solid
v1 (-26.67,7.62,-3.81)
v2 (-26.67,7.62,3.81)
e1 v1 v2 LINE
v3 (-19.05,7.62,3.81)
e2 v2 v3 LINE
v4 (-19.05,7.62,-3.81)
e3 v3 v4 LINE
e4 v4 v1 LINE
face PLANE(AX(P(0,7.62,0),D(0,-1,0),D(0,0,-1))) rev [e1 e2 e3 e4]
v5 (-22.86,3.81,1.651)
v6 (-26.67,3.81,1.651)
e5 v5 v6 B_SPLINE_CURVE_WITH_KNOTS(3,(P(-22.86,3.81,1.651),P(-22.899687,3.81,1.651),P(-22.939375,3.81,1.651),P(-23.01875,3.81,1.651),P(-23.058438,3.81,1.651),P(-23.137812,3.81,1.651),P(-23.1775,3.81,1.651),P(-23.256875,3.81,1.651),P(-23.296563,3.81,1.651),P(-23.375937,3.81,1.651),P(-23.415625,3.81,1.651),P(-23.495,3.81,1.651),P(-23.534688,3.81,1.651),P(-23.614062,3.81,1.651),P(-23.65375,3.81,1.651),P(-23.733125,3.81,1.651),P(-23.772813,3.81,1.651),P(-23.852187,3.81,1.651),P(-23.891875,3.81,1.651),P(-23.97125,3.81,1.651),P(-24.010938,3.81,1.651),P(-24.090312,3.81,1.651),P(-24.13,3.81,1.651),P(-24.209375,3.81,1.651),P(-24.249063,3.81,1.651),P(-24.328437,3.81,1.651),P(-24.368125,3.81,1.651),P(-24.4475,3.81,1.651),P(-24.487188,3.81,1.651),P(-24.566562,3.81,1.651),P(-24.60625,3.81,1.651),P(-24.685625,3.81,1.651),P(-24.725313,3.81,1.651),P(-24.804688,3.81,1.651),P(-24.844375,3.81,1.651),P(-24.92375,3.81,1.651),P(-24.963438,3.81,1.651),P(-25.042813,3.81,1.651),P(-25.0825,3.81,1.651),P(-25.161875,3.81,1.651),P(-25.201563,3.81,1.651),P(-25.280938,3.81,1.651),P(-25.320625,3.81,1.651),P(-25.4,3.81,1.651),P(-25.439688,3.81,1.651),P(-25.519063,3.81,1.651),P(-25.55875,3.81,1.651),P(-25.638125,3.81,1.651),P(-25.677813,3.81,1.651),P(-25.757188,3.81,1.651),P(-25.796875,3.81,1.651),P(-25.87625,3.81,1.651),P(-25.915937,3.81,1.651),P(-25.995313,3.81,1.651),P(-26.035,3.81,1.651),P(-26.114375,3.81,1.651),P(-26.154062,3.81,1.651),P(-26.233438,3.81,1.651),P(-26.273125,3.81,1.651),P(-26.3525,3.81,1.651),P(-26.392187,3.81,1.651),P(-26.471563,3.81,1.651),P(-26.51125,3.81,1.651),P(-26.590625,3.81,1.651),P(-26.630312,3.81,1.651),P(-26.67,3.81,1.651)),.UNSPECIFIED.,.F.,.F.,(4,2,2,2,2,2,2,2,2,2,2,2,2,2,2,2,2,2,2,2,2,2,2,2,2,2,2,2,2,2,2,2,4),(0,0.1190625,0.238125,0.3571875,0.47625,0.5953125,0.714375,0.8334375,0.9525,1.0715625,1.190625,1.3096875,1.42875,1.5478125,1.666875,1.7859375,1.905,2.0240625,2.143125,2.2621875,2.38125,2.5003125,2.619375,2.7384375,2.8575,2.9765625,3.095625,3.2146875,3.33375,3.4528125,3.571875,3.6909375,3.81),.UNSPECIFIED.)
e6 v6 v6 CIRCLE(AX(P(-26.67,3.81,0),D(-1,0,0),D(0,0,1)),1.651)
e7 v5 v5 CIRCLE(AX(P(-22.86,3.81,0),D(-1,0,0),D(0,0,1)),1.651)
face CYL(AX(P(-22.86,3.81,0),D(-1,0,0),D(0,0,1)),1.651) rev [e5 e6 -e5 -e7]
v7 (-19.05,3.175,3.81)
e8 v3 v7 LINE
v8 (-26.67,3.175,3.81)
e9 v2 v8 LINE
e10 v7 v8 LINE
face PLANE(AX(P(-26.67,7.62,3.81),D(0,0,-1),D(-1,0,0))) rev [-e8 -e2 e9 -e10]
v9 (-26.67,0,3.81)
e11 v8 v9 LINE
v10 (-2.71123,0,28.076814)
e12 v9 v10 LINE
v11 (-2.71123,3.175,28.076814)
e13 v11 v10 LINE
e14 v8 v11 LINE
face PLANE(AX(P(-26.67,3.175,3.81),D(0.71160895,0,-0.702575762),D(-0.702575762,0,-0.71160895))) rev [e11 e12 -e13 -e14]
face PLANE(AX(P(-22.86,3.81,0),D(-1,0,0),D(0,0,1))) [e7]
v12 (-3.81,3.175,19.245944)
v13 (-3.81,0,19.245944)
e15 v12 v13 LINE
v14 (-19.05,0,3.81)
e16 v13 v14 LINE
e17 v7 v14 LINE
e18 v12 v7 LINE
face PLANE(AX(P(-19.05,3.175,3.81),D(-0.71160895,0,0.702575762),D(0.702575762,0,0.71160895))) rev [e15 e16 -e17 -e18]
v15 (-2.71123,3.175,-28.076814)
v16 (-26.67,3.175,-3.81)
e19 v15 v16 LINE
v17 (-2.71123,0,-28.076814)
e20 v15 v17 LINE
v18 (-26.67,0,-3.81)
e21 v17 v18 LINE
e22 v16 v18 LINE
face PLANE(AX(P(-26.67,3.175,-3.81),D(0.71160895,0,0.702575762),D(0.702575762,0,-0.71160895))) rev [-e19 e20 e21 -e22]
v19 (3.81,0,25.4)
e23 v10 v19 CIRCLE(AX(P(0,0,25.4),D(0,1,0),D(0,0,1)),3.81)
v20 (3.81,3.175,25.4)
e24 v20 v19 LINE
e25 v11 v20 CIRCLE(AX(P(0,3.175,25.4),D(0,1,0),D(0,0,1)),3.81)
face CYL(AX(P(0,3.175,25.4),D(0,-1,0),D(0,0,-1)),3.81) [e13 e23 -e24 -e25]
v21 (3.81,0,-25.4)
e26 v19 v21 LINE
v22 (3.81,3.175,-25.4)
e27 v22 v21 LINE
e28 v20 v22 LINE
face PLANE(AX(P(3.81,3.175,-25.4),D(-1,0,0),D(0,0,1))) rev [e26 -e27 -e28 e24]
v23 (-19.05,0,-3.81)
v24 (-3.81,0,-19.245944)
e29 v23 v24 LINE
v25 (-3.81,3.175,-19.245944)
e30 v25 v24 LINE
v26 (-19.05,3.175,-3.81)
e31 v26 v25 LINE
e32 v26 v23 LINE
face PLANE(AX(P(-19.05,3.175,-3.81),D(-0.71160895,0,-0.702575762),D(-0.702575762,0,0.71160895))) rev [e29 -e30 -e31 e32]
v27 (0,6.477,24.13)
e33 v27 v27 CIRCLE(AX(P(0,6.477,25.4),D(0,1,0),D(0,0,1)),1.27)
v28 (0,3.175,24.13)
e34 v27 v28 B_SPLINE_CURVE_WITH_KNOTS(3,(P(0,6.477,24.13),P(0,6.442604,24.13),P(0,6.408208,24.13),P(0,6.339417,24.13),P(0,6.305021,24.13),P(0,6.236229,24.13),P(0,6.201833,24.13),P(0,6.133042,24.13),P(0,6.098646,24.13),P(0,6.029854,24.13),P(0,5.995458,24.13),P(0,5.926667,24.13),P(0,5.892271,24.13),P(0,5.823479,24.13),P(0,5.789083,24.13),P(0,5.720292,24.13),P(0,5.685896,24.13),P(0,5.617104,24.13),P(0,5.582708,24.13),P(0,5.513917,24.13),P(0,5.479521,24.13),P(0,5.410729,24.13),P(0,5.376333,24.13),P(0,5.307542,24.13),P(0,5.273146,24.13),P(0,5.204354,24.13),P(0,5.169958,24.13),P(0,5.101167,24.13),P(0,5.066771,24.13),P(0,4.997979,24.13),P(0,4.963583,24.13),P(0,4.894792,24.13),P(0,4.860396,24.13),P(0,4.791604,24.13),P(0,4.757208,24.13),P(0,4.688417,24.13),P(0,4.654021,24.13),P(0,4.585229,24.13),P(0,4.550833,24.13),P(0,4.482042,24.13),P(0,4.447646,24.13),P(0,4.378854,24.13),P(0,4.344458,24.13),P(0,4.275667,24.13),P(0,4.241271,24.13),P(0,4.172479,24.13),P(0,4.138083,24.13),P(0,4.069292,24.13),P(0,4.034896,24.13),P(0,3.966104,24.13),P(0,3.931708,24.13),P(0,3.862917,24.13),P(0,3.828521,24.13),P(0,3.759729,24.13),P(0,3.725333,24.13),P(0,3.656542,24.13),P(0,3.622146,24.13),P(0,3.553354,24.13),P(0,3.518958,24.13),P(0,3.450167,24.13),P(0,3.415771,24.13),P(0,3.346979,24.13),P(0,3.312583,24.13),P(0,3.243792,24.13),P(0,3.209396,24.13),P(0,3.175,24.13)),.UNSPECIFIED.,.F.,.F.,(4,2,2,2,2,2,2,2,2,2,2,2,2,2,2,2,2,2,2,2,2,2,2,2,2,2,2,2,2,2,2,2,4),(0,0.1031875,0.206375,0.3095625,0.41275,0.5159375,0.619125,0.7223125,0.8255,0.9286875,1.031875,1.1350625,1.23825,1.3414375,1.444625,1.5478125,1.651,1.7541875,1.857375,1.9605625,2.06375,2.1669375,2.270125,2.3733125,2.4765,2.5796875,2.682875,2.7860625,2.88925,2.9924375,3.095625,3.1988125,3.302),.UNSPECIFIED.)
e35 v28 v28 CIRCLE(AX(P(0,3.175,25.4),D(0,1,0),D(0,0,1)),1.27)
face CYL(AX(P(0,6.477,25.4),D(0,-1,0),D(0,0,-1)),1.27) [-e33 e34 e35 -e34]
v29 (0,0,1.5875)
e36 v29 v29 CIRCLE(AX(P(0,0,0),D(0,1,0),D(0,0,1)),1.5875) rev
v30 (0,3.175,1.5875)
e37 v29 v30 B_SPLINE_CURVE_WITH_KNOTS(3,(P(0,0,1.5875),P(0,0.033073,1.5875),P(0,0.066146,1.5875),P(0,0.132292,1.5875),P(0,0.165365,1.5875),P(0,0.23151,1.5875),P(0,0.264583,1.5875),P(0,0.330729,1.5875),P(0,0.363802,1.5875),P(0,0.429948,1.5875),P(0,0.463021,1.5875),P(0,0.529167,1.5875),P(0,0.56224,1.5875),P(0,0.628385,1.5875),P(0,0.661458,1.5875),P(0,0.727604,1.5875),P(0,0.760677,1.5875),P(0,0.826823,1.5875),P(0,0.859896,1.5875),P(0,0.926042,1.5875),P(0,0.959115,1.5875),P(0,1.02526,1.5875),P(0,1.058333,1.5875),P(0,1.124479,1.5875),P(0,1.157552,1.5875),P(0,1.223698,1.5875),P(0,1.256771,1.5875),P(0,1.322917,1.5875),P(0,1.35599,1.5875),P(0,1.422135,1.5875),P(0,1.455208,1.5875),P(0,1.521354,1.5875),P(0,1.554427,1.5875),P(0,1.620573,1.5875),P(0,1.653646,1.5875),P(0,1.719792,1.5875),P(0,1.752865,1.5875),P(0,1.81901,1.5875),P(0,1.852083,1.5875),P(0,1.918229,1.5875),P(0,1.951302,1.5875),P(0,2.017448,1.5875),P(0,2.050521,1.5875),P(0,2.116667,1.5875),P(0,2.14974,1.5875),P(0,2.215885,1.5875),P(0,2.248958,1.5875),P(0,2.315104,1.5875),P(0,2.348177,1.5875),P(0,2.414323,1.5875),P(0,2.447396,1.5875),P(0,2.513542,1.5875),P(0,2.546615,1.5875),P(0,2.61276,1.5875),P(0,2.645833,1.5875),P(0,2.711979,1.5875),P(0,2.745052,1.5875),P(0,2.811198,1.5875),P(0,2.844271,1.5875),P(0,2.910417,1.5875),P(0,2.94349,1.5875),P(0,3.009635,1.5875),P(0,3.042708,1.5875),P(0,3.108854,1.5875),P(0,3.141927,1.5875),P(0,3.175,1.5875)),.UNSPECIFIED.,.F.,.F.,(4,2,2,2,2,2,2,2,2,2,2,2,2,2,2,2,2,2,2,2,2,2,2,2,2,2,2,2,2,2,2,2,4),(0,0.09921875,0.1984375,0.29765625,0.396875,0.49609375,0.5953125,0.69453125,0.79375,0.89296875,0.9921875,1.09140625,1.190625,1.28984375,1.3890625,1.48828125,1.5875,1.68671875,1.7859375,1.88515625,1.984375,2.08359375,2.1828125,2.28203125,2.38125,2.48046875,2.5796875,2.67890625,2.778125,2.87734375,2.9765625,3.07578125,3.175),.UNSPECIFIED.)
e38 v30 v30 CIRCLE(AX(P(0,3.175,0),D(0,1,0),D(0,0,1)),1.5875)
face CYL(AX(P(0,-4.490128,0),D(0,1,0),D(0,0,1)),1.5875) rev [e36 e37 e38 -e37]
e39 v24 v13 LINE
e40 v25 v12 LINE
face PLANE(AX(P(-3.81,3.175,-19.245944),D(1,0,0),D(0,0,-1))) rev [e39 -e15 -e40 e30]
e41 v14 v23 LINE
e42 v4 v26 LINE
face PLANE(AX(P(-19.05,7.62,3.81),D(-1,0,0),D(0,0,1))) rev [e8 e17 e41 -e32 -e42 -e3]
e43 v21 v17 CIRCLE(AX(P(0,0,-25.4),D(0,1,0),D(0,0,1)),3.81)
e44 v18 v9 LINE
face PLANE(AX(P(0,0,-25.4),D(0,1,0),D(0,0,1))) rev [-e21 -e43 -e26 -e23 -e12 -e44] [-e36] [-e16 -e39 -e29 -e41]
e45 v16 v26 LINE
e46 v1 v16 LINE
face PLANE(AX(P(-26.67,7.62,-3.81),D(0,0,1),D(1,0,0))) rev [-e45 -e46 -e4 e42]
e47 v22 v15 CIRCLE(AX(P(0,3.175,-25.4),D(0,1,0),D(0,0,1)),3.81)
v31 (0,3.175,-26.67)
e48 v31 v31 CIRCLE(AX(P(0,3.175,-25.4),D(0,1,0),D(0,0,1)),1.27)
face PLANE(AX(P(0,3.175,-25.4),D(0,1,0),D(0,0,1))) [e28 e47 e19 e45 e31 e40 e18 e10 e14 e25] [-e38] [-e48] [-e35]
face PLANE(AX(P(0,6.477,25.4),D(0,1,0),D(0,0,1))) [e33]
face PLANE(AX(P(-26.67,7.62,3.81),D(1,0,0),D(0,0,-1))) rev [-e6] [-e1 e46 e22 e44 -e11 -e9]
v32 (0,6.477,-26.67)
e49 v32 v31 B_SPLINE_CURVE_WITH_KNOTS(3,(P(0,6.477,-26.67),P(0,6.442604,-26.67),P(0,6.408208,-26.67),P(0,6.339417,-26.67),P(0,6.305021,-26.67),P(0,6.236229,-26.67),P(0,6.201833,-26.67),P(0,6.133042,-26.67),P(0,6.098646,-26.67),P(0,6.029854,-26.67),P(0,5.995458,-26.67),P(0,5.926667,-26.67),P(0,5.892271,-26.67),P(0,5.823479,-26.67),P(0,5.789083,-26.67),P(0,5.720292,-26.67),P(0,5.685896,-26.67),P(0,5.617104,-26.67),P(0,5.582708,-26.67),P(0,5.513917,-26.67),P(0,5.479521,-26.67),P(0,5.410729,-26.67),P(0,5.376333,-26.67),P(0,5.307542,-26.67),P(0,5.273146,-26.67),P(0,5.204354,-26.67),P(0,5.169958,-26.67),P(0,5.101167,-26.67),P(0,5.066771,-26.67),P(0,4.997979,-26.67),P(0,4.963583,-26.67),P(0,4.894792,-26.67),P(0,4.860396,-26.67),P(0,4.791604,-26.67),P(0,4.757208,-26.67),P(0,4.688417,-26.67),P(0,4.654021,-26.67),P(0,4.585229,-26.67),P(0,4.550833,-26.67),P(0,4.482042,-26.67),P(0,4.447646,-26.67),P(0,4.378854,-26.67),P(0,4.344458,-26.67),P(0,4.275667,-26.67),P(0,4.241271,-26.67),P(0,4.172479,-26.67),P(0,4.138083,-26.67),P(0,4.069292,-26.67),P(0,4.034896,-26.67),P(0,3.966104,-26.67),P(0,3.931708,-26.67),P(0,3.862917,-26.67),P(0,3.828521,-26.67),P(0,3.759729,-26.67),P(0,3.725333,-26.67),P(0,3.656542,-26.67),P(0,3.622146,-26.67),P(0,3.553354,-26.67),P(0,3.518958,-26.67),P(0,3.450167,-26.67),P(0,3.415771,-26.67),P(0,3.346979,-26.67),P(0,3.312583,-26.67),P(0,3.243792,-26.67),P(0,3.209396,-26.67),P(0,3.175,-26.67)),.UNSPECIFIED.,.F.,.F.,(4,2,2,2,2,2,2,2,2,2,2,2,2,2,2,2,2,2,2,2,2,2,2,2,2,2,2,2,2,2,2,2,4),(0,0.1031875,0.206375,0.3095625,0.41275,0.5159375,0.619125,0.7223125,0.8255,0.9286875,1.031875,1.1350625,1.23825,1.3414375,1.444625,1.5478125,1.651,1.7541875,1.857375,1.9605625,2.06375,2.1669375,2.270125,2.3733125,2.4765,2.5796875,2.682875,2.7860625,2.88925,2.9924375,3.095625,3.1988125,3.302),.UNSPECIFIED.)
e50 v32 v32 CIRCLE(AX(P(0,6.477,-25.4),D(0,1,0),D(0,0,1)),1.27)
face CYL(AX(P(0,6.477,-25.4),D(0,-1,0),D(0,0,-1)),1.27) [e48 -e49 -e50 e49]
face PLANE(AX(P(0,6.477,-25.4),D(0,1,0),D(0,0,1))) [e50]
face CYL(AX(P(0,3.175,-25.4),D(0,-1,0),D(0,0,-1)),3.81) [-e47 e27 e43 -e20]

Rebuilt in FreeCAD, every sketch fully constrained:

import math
import FreeCAD as App
import Part
import Sketcher
from FreeCAD import Vector
Q = App.Units.Quantity


def add_polygon(sketch, points):
    """Adds a closed chain of lines whose ends are joined by coincident constraints."""
    first, n = sketch.GeometryCount, len(points)
    for a, b in zip(points, points[1:] + points[:1]):
        sketch.addGeometry(Part.LineSegment(App.Vector(*a, 0), App.Vector(*b, 0)), False)
    for i in range(n):
        sketch.addConstraint(Sketcher.Constraint("Coincident", first + i, 2, first + (i + 1) % n, 1))

doc = App.newDocument("Part")
params = doc.addObject("Spreadsheet::Sheet", "Params")
for row, (alias, value) in enumerate([
    ("sketch1_height", "2 in"),
    ("sketch1_radius", "0.15 in"),
    ("sketch1_width", "0.3 in"),
    ("pad1_length", "0.125 in"),
    ("sketch2_width", "0.3 in"),
    ("pad2_length", "0.3 in"),
    ("sketch3_diameter", "0.1 in"),
    ("pad3_length", "0.13 in"),
    ("sketch4_diameter", "0.125 in"),
    ("sketch5_diameter", "0.13 in"),
    ("pocket2_length", "0.15 in"),
], start=1):
    params.set(f"A{row}", alias)
    params.set(f"B{row}", "=" + value)
    params.setAlias(f"B{row}", alias)

body = doc.addObject("PartDesign::Body", "Body")

sketch1 = body.newObject("Sketcher::SketchObject", "Sketch")
sketch1.AttachmentSupport = (doc.getObject("XZ_Plane"), [""])
sketch1.MapMode = "FlatFace"
sketch1.addGeometry([
    Part.LineSegment(Vector(-3.8, -19.2, 0), Vector(-3.8, 19.2, 0)),
    Part.LineSegment(Vector(-3.8, 19.2, 0), Vector(-19.1, 3.8, 0)),
    Part.LineSegment(Vector(-19.1, 3.8, 0), Vector(-26.7, 3.8, 0)),
    Part.LineSegment(Vector(-26.7, 3.8, 0), Vector(-2.7, 28.1, 0)),
    Part.ArcOfCircle(Part.Circle(Vector(0, 25.4, 0), Vector(0, 0, 1), 3.8), math.radians(0), math.radians(135)),
    Part.LineSegment(Vector(3.8, 25.4, 0), Vector(3.8, -25.4, 0)),
    Part.ArcOfCircle(Part.Circle(Vector(0, -25.4, 0), Vector(0, 0, 1), 3.8), math.radians(-135), math.radians(0)),
    Part.LineSegment(Vector(-2.7, -28.1, 0), Vector(-26.7, -3.8, 0)),
    Part.LineSegment(Vector(-26.7, -3.8, 0), Vector(-19.1, -3.8, 0)),
    Part.LineSegment(Vector(-19.1, -3.8, 0), Vector(-3.8, -19.2, 0)),
], False)
sketch1.addConstraint([
    Sketcher.Constraint("Coincident", 0, 2, 1, 1),
    Sketcher.Constraint("Coincident", 1, 2, 2, 1),
    Sketcher.Constraint("Coincident", 2, 2, 3, 1),
    Sketcher.Constraint("Tangent", 3, 2, 4, 2),
    Sketcher.Constraint("Tangent", 4, 1, 5, 1),
    Sketcher.Constraint("Tangent", 5, 2, 6, 2),
    Sketcher.Constraint("Tangent", 6, 1, 7, 1),
    Sketcher.Constraint("Coincident", 7, 2, 8, 1),
    Sketcher.Constraint("Coincident", 8, 2, 9, 1),
    Sketcher.Constraint("Coincident", 9, 2, 0, 1),
    Sketcher.Constraint("Vertical", 0),
    Sketcher.Constraint("Horizontal", 2),
    Sketcher.Constraint("Vertical", 5),
    Sketcher.Constraint("Horizontal", 8),
    Sketcher.Constraint("Equal", 4, 6),
    Sketcher.Constraint("Symmetric", 4, 3, 6, 3, -1, 1),
    Sketcher.Constraint("Symmetric", 2, 2, 7, 2, -1),
    Sketcher.Constraint("Parallel", 1, 3),
    Sketcher.Constraint("Parallel", 7, 9),
    Sketcher.Constraint("Vertical", 1, 2, 8, 2),
    Sketcher.Constraint("DistanceY", 5, 2, 5, 1, Q("2 in")),
    Sketcher.Constraint("Radius", 4, Q("0.15 in")),
    Sketcher.Constraint("DistanceX", 2, 2, 2, 1, Q("0.3 in")),
    Sketcher.Constraint("DistanceX", 1, 2, 0, 2, Q("0.6 in")),
    Sketcher.Constraint("DistanceX", 0, 2, 4, 1, Q("0.3 in")),
    Sketcher.Constraint("DistanceY", 7, 2, 2, 2, Q("0.3 in")),
])
sketch1.setExpression("Constraints[20]", "Params.sketch1_height")
sketch1.setExpression("Constraints[21]", "Params.sketch1_radius")
sketch1.setExpression("Constraints[22]", "Params.sketch1_width")
pad1 = body.newObject("PartDesign::Pad", "Pad")
pad1.Profile = sketch1
pad1.setExpression("Length", "Params.pad1_length")
pad1.Reversed = True

sketch2 = body.newObject("Sketcher::SketchObject", "Sketch001")
sketch2.AttachmentSupport = (doc.getObject("XZ_Plane"), [""])
sketch2.MapMode = "FlatFace"
add_polygon(sketch2, [(-27, -4), (-27, 4), (-19, 4), (-19, -4)])
sketch2.addConstraint([
    Sketcher.Constraint("Vertical", 0),
    Sketcher.Constraint("Horizontal", 1),
    Sketcher.Constraint("Vertical", 2),
    Sketcher.Constraint("Horizontal", 3),
    Sketcher.Constraint("Equal", 3, 0),
    Sketcher.Constraint("DistanceX", 1, 1, 1, 2, Q("0.3 in")),
    Sketcher.Constraint("DistanceX", 0, 2, -1, 1, Q("1.05 in")),
    Sketcher.Constraint("DistanceY", -1, 1, 0, 2, Q("0.15 in")),
])
sketch2.setExpression("Constraints[9]", "Params.sketch2_width")
pad2 = body.newObject("PartDesign::Pad", "Pad001")
pad2.Profile = sketch2
pad2.setExpression("Length", "Params.pad2_length")
pad2.Reversed = True

sketch3 = body.newObject("Sketcher::SketchObject", "Sketch002")
sketch3.AttachmentSupport = (doc.getObject("XZ_Plane"), [""])
sketch3.MapMode = "FlatFace"
sketch3.AttachmentOffset = App.Placement(Vector(0, 0, -0.125 * 25.4), App.Rotation())
sketch3.addGeometry([
    Part.Circle(Vector(0, 25.4, 0), Vector(0, 0, 1), 1.3),
    Part.Circle(Vector(0, -25.4, 0), Vector(0, 0, 1), 1.3),
], False)
sketch3.addConstraint([
    Sketcher.Constraint("Equal", 0, 1),
    Sketcher.Constraint("Symmetric", 0, 3, 1, 3, -1, 1),
    Sketcher.Constraint("PointOnObject", 0, 3, -2),
    Sketcher.Constraint("Diameter", 0, Q("0.1 in")),
    Sketcher.Constraint("DistanceY", -1, 1, 0, 3, Q("1 in")),
])
sketch3.setExpression("Constraints[3]", "Params.sketch3_diameter")
pad3 = body.newObject("PartDesign::Pad", "Pad002")
pad3.Profile = sketch3
pad3.setExpression("Length", "Params.pad3_length")
pad3.Reversed = True

sketch4 = body.newObject("Sketcher::SketchObject", "Sketch003")
sketch4.AttachmentSupport = (doc.getObject("XZ_Plane"), [""])
sketch4.MapMode = "FlatFace"
sketch4.AttachmentOffset = App.Placement(Vector(0, 0, -0.125 * 25.4), App.Rotation())
sketch4.addGeometry(Part.Circle(Vector(0, 0, 0), Vector(0, 0, 1), 1.6), False)
sketch4.addConstraint([
    Sketcher.Constraint("Coincident", 0, 3, -1, 1),
    Sketcher.Constraint("Diameter", 0, Q("0.125 in")),
])
sketch4.setExpression("Constraints[1]", "Params.sketch4_diameter")
pocket1 = body.newObject("PartDesign::Pocket", "Pocket")
pocket1.Profile = sketch4
pocket1.Type = "UpToFirst"
pocket1.Reversed = True

sketch5 = body.newObject("Sketcher::SketchObject", "Sketch004")
sketch5.AttachmentSupport = (doc.getObject("YZ_Plane"), [""])
sketch5.MapMode = "FlatFace"
sketch5.AttachmentOffset = App.Placement(Vector(0, 0, -1.05 * 25.4), App.Rotation())
sketch5.addGeometry(Part.Circle(Vector(3.8, 0, 0), Vector(0, 0, 1), 1.7), False)
sketch5.addConstraint([
    Sketcher.Constraint("PointOnObject", 0, 3, -1),
    Sketcher.Constraint("Diameter", 0, Q("0.13 in")),
    Sketcher.Constraint("DistanceX", -1, 1, 0, 3, Q("0.15 in")),
])
sketch5.setExpression("Constraints[1]", "Params.sketch5_diameter")
pocket2 = body.newObject("PartDesign::Pocket", "Pocket001")
pocket2.Profile = sketch5
pocket2.setExpression("Length", "Params.pocket2_length")
pocket2.Reversed = True

doc.recompute()
